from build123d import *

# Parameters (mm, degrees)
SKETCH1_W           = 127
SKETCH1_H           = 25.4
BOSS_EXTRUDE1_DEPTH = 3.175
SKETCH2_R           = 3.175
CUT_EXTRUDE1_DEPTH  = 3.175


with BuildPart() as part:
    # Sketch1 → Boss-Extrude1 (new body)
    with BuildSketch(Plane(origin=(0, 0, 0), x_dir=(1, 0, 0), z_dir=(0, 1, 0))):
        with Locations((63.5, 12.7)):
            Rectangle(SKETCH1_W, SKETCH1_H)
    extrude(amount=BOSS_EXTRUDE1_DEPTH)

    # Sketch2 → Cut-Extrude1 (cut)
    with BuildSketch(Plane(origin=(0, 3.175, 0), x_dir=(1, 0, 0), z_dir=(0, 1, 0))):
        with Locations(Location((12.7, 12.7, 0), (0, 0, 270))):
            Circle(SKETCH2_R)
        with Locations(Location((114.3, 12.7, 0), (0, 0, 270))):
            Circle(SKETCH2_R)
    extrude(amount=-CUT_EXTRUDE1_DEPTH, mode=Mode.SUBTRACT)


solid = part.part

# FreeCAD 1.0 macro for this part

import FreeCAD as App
import Part
import Sketcher

V = App.Vector
Q = App.Units.Quantity


def add_polygon(sketch, points):
    """Adds a closed chain of lines whose ends are joined by coincident constraints."""
    first, n = sketch.GeometryCount, len(points)
    for a, b in zip(points, points[1:] + points[:1]):
        sketch.addGeometry(Part.LineSegment(App.Vector(*a, 0), App.Vector(*b, 0)), False)
    for i in range(n):
        sketch.addConstraint(Sketcher.Constraint("Coincident", first + i, 2, first + (i + 1) % n, 1))

doc = App.newDocument("Part")
body = doc.addObject("PartDesign::Body", "Body")

sketch1 = body.newObject("Sketcher::SketchObject", "Sketch")
sketch1.AttachmentSupport = (doc.getObject("XZ_Plane"), [""])
sketch1.MapMode = "FlatFace"
add_polygon(sketch1, [(0, -25), (0, 0), (127, 0), (127, -25)])
sketch1.addConstraint([
    Sketcher.Constraint("Vertical", 0),
    Sketcher.Constraint("Horizontal", 1),
    Sketcher.Constraint("Vertical", 2),
    Sketcher.Constraint("Horizontal", 3),
    Sketcher.Constraint("Coincident", 0, 2, -1, 1),
    Sketcher.Constraint("DistanceX", 1, 1, 1, 2, Q("5 in")),
    Sketcher.Constraint("DistanceY", 0, 1, 0, 2, Q("1 in")),
])
pad1 = body.newObject("PartDesign::Pad", "Pad")
pad1.Profile = sketch1
pad1.Length = Q("0.125 in")
pad1.Reversed = True

sketch2 = body.newObject("Sketcher::SketchObject", "Sketch001")
sketch2.AttachmentSupport = (doc.getObject("XZ_Plane"), [""])
sketch2.MapMode = "FlatFace"
sketch2.AttachmentOffset = App.Placement(V(0, 0, -0.125 * 25.4), App.Rotation())
sketch2.addGeometry([
    Part.Circle(V(12.7, -12.7, 0), V(0, 0, 1), 3.2),
    Part.Circle(V(114.3, -12.7, 0), V(0, 0, 1), 3.2),
], False)
sketch2.addConstraint([
    Sketcher.Constraint("Equal", 0, 1),
    Sketcher.Constraint("Horizontal", 0, 3, 1, 3),
    Sketcher.Constraint("Diameter", 0, Q("0.25 in")),
    Sketcher.Constraint("DistanceX", 0, 3, 1, 3, Q("4 in")),
    Sketcher.Constraint("DistanceX", -1, 1, 0, 3, Q("0.5 in")),
    Sketcher.Constraint("DistanceY", 0, 3, -1, 1, Q("0.5 in")),
])
pocket1 = body.newObject("PartDesign::Pocket", "Pocket")
pocket1.Profile = sketch2
pocket1.Length = Q("0.125 in")
pocket1.Reversed = True

doc.recompute()
